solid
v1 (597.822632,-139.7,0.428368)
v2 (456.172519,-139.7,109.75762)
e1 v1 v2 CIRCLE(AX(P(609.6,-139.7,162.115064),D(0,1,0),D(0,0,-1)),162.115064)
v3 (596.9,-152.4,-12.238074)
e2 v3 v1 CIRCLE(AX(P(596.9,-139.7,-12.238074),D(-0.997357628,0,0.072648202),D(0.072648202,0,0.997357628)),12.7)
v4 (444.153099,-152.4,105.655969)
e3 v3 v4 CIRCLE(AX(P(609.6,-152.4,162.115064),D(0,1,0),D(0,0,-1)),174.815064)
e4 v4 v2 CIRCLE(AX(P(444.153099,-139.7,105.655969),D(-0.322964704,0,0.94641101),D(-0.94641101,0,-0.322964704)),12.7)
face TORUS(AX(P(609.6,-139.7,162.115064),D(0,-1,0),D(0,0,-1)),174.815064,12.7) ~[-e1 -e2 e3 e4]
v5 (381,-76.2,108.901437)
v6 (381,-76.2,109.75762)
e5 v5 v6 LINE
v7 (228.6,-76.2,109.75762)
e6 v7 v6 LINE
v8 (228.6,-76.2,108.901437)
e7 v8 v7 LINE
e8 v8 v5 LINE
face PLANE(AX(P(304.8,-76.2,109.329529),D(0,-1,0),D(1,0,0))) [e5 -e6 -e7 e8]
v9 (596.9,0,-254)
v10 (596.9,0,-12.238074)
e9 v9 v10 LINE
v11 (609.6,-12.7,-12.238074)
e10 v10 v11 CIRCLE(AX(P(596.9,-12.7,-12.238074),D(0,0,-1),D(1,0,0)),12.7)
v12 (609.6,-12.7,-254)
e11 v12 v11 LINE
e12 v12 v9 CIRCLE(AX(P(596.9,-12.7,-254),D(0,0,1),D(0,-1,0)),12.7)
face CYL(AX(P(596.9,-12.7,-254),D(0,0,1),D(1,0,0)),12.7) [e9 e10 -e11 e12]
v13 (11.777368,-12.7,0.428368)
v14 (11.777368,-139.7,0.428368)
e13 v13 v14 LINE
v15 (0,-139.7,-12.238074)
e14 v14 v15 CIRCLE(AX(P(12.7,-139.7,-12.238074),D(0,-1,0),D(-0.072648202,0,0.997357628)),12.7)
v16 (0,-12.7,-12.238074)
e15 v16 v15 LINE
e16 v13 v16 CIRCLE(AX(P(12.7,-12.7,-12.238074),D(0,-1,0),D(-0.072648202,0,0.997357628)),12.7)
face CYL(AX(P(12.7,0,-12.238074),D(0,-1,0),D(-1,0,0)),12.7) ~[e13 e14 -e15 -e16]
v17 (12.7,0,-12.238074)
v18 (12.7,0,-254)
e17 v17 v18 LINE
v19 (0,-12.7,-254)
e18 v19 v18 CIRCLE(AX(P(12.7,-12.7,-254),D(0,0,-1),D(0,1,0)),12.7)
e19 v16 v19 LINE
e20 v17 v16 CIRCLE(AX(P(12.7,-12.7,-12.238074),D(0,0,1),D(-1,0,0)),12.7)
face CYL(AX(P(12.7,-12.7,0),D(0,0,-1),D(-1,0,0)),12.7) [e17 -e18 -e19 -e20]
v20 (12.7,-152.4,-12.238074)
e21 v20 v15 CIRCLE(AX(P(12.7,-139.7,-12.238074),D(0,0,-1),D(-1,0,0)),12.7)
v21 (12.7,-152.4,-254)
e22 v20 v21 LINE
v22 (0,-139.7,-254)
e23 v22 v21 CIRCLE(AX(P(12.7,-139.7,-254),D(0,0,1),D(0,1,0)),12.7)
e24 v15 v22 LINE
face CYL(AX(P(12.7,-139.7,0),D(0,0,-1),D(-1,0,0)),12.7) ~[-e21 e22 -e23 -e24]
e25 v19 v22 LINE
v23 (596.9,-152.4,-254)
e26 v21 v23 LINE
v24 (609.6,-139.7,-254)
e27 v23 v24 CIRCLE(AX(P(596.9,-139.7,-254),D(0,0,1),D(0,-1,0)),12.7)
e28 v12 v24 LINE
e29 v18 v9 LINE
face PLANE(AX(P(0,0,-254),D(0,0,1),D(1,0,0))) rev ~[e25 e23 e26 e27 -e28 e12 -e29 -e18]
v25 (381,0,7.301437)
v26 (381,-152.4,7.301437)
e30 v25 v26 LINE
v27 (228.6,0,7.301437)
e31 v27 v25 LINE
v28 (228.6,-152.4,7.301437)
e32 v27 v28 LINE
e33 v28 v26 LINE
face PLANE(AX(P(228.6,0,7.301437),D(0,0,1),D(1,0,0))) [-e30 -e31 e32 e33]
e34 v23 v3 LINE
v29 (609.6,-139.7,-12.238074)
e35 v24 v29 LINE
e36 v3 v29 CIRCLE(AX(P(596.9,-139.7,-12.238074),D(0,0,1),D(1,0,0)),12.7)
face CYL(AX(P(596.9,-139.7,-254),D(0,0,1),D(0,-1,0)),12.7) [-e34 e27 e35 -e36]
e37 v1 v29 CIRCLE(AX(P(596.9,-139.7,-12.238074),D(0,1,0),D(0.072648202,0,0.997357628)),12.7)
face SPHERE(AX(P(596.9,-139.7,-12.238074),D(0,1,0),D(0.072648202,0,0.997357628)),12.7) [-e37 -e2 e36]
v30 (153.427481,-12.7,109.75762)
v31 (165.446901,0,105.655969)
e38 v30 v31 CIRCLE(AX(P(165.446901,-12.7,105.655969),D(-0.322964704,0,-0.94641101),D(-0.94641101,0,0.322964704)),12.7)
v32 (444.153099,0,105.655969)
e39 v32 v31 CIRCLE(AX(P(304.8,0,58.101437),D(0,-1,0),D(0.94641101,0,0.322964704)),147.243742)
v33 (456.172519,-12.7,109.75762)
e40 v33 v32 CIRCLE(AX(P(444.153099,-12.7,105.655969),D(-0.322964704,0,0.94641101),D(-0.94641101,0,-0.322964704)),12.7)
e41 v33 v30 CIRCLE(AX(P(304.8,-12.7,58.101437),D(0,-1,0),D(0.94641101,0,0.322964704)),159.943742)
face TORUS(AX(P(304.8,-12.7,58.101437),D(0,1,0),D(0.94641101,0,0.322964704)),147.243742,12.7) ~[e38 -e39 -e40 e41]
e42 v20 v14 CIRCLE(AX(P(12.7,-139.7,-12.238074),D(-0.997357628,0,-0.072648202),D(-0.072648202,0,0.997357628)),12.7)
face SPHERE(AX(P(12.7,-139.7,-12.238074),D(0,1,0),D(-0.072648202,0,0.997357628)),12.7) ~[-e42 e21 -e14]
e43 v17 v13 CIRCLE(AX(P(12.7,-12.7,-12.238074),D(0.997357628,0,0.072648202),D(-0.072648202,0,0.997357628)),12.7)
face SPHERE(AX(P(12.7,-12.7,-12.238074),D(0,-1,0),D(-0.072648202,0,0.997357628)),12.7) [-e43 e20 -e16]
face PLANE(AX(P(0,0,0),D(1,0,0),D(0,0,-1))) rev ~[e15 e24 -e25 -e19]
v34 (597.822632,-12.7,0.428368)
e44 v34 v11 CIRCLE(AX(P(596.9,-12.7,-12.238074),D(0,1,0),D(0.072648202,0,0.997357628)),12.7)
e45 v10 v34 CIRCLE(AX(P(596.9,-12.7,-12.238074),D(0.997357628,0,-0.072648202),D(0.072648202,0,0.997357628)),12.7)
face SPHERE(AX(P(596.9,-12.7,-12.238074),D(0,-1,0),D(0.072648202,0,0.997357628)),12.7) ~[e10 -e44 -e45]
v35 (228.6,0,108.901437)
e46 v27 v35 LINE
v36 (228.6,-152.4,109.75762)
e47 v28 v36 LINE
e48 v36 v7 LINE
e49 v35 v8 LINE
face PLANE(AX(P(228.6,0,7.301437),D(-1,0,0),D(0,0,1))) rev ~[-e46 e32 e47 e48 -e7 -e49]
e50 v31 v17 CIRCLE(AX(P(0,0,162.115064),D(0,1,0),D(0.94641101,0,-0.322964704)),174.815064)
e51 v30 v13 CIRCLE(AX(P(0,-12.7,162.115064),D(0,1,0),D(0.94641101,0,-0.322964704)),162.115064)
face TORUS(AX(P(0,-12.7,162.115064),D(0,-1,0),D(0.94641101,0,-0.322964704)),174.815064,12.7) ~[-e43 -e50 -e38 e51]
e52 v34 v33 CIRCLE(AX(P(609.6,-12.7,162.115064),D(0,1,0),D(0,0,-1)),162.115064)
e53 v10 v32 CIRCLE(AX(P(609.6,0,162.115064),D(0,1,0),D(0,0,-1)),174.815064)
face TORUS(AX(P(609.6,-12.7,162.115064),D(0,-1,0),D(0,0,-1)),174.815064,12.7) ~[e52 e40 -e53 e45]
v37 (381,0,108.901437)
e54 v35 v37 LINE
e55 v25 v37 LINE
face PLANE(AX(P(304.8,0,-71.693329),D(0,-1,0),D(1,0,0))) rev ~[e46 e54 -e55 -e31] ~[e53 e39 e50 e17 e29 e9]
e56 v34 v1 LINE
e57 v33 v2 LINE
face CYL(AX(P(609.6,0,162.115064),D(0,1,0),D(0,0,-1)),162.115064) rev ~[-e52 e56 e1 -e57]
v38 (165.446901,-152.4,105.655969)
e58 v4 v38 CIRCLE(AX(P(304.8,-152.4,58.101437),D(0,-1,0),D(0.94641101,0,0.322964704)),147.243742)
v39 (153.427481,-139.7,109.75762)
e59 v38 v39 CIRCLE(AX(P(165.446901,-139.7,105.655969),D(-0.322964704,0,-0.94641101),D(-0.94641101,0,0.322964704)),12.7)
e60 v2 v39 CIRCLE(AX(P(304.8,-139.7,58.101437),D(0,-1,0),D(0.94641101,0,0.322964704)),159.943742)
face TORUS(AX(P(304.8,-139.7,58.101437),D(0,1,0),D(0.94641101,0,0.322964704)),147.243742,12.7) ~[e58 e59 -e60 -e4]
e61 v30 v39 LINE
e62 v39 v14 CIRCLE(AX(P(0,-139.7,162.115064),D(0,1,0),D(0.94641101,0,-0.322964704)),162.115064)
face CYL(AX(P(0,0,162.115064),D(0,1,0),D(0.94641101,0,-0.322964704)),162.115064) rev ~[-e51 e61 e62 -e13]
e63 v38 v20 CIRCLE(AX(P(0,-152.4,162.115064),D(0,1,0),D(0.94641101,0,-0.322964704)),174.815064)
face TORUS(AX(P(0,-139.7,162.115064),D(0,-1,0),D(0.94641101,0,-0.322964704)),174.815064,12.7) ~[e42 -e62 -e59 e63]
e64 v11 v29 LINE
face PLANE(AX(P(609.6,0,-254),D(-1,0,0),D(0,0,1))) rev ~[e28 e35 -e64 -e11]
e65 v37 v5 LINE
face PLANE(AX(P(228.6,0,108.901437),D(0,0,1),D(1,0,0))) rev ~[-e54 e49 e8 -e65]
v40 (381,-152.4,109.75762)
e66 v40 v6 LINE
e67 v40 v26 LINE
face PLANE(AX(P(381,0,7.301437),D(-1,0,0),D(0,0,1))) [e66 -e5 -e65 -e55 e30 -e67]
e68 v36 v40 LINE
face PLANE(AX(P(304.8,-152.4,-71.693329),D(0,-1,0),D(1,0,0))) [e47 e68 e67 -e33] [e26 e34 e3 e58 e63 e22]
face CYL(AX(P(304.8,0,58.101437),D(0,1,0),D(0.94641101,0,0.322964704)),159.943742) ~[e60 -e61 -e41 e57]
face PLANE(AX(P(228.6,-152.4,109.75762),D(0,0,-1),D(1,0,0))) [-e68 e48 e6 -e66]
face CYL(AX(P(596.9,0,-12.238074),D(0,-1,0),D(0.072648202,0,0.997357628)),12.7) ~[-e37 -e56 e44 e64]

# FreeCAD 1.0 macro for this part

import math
import FreeCAD as App
import Part
import Sketcher
from FreeCAD import Vector
Q = App.Units.Quantity


def edges_at(feature, points):
    """Names of the edges that pass closest to the given points."""
    edges = feature.Shape.Edges
    near = lambda p: min(range(len(edges)), key=lambda i: edges[i].distToShape(Part.Vertex(*p))[0])
    return sorted({f"Edge{near(p) + 1}" for p in points})

doc = App.newDocument("Part")
params = doc.addObject("Spreadsheet::Sheet", "Params")
for row, (alias, value) in enumerate([
    ("sketch1_width", "24 in"),
    ("sketch1_width2", "6 in"),
    ("sketch1_height", "10 in"),
    ("sketch1_height2", "4 in"),
    ("pad1_length", "6 in"),
    ("sketch2_width", "6 in"),
    ("pocket1_length", "3 in"),
    ("fillet_radius", "0.5 in"),
], start=1):
    params.set(f"A{row}", alias)
    params.set(f"B{row}", "=" + value)
    params.setAlias(f"B{row}", alias)

body = doc.addObject("PartDesign::Body", "Body")

# Sketch on XZ plane
sketch1 = body.newObject("Sketcher::SketchObject", "Sketch")
sketch1.AttachmentSupport = (doc.getObject("XZ_Plane"), [""])
sketch1.MapMode = "FlatFace"
sketch1.addGeometry(Part.LineSegment(Vector(0, 0, 0), Vector(0, -254, 0)), False)
sketch1.addGeometry(Part.LineSegment(Vector(0, -254, 0), Vector(610, -254, 0)), False)
sketch1.addGeometry(Part.LineSegment(Vector(610, -254, 0), Vector(610, 0, 0)), False)
sketch1.addGeometry(Part.ArcOfCircle(Part.Circle(Vector(610, 162, 0), Vector(0, 0, 1), 162), math.radians(-161), math.radians(-90)), False)
sketch1.addGeometry(Part.ArcOfCircle(Part.Circle(Vector(305, 58, 0), Vector(0, 0, 1), 160), math.radians(19), math.radians(161)), False)
sketch1.addGeometry(Part.ArcOfCircle(Part.Circle(Vector(0, 162, 0), Vector(0, 0, 1), 162), math.radians(-90), math.radians(-19)), False)
sketch1.addGeometry(Part.LineSegment(Vector(381, 7, 0), Vector(229, 7, 0)), False)
sketch1.addGeometry(Part.LineSegment(Vector(229, 7, 0), Vector(229, 109, 0)), False)
sketch1.addGeometry(Part.LineSegment(Vector(229, 109, 0), Vector(381, 109, 0)), False)
sketch1.addGeometry(Part.LineSegment(Vector(381, 109, 0), Vector(381, 7, 0)), False)
sketch1.addConstraint(Sketcher.Constraint("Coincident", 0, 2, 1, 1))
sketch1.addConstraint(Sketcher.Constraint("Coincident", 1, 2, 2, 1))
sketch1.addConstraint(Sketcher.Constraint("Coincident", 2, 2, 3, 2))
sketch1.addConstraint(Sketcher.Constraint("Tangent", 3, 1, 4, 1))
sketch1.addConstraint(Sketcher.Constraint("Tangent", 4, 2, 5, 2))
sketch1.addConstraint(Sketcher.Constraint("Coincident", 5, 1, 0, 1))
sketch1.addConstraint(Sketcher.Constraint("Coincident", 6, 2, 7, 1))
sketch1.addConstraint(Sketcher.Constraint("Coincident", 7, 2, 8, 1))
sketch1.addConstraint(Sketcher.Constraint("Coincident", 8, 2, 9, 1))
sketch1.addConstraint(Sketcher.Constraint("Coincident", 9, 2, 6, 1))
sketch1.addConstraint(Sketcher.Constraint("Vertical", 0))
sketch1.addConstraint(Sketcher.Constraint("Horizontal", 1))
sketch1.addConstraint(Sketcher.Constraint("Vertical", 2))
sketch1.addConstraint(Sketcher.Constraint("Horizontal", 6))
sketch1.addConstraint(Sketcher.Constraint("Vertical", 7))
sketch1.addConstraint(Sketcher.Constraint("Horizontal", 8))
sketch1.addConstraint(Sketcher.Constraint("Vertical", 9))
sketch1.addConstraint(Sketcher.Constraint("Coincident", 5, 1, -1, 1))
sketch1.addConstraint(Sketcher.Constraint("Equal", 3, 5))
sketch1.addConstraint(Sketcher.Constraint("PointOnObject", 5, 3, -2))
sketch1.addConstraint(Sketcher.Constraint("PointOnObject", 2, 2, -1))
sketch1.addConstraint(Sketcher.Constraint("Vertical", 3, 3, 1, 2))
sketch1.addConstraint(Sketcher.Constraint("DistanceX", 1, 1, 1, 2, Q("24 in")))
sketch1.addConstraint(Sketcher.Constraint("DistanceX", 6, 2, 6, 1, Q("6 in")))
sketch1.addConstraint(Sketcher.Constraint("DistanceY", 0, 2, 0, 1, Q("10 in")))
sketch1.addConstraint(Sketcher.Constraint("DistanceY", 7, 1, 7, 2, Q("4 in")))
sketch1.addConstraint(Sketcher.Constraint("DistanceX", -1, 1, 6, 2, Q("9 in")))
sketch1.addConstraint(Sketcher.Constraint("DistanceY", 6, 2, 4, 3, Q("2 in")))
sketch1.addConstraint(Sketcher.Constraint("Radius", 3, 162.115064))
sketch1.addConstraint(Sketcher.Constraint("Radius", 4, 159.943742))
sketch1.setExpression("Constraints[22]", "Params.sketch1_width")
sketch1.setExpression("Constraints[23]", "Params.sketch1_width2")
sketch1.setExpression("Constraints[24]", "Params.sketch1_height")
sketch1.setExpression("Constraints[25]", "Params.sketch1_height2")
pad1 = body.newObject("PartDesign::Pad", "Pad")
pad1.Profile = sketch1
pad1.setExpression("Length", "Params.pad1_length")

# Sketch on XZ plane
sketch2 = body.newObject("Sketcher::SketchObject", "Sketch001")
sketch2.AttachmentSupport = (doc.getObject("XZ_Plane"), [""])
sketch2.MapMode = "FlatFace"
sketch2.AttachmentOffset = App.Placement(Vector(0, 0, 6 * 25.4), App.Rotation())
sketch2.addGeometry(Part.LineSegment(Vector(228.6, 109.8, 0), Vector(228.6, 108.9, 0)), False)
sketch2.addGeometry(Part.LineSegment(Vector(228.6, 108.9, 0), Vector(381, 108.9, 0)), False)
sketch2.addGeometry(Part.LineSegment(Vector(381, 108.9, 0), Vector(381, 109.8, 0)), False)
sketch2.addGeometry(Part.LineSegment(Vector(381, 109.8, 0), Vector(228.6, 109.8, 0)), False)
sketch2.addConstraint(Sketcher.Constraint("Coincident", 0, 2, 1, 1))
sketch2.addConstraint(Sketcher.Constraint("Coincident", 1, 2, 2, 1))
sketch2.addConstraint(Sketcher.Constraint("Coincident", 2, 2, 3, 1))
sketch2.addConstraint(Sketcher.Constraint("Coincident", 3, 2, 0, 1))
sketch2.addConstraint(Sketcher.Constraint("Vertical", 0))
sketch2.addConstraint(Sketcher.Constraint("Horizontal", 1))
sketch2.addConstraint(Sketcher.Constraint("Vertical", 2))
sketch2.addConstraint(Sketcher.Constraint("Horizontal", 3))
sketch2.addConstraint(Sketcher.Constraint("DistanceX", 1, 1, 1, 2, Q("6 in")))
sketch2.addConstraint(Sketcher.Constraint("DistanceX", -1, 1, 0, 2, Q("9 in")))
sketch2.addConstraint(Sketcher.Constraint("DistanceY", 0, 2, 0, 1, 0.856183))
sketch2.addConstraint(Sketcher.Constraint("DistanceY", -1, 1, 2, 2, 109.75762))
sketch2.setExpression("Constraints[8]", "Params.sketch2_width")
pocket1 = body.newObject("PartDesign::Pocket", "Pocket")
pocket1.Profile = sketch2
pocket1.setExpression("Length", "Params.pocket1_length")
doc.recompute()

fillet = body.newObject("PartDesign::Fillet", "Fillet")
fillet.Base = (pocket1, edges_at(pocket1, [
    (609.6, -76.2, 0),
    (0, -76.2, 0),
    (515.278, -152.4, 30.264),
    (304.8, -152.4, 218.045),
    (304.8, 0, 218.045),
    (515.278, 0, 30.264),
    (609.6, -152.4, -127),
    (609.6, 0, -127),
    (0, -152.4, -127),
    (0, 0, -127),
]))
fillet.setExpression("Radius", "Params.fillet_radius")

doc.recompute()
